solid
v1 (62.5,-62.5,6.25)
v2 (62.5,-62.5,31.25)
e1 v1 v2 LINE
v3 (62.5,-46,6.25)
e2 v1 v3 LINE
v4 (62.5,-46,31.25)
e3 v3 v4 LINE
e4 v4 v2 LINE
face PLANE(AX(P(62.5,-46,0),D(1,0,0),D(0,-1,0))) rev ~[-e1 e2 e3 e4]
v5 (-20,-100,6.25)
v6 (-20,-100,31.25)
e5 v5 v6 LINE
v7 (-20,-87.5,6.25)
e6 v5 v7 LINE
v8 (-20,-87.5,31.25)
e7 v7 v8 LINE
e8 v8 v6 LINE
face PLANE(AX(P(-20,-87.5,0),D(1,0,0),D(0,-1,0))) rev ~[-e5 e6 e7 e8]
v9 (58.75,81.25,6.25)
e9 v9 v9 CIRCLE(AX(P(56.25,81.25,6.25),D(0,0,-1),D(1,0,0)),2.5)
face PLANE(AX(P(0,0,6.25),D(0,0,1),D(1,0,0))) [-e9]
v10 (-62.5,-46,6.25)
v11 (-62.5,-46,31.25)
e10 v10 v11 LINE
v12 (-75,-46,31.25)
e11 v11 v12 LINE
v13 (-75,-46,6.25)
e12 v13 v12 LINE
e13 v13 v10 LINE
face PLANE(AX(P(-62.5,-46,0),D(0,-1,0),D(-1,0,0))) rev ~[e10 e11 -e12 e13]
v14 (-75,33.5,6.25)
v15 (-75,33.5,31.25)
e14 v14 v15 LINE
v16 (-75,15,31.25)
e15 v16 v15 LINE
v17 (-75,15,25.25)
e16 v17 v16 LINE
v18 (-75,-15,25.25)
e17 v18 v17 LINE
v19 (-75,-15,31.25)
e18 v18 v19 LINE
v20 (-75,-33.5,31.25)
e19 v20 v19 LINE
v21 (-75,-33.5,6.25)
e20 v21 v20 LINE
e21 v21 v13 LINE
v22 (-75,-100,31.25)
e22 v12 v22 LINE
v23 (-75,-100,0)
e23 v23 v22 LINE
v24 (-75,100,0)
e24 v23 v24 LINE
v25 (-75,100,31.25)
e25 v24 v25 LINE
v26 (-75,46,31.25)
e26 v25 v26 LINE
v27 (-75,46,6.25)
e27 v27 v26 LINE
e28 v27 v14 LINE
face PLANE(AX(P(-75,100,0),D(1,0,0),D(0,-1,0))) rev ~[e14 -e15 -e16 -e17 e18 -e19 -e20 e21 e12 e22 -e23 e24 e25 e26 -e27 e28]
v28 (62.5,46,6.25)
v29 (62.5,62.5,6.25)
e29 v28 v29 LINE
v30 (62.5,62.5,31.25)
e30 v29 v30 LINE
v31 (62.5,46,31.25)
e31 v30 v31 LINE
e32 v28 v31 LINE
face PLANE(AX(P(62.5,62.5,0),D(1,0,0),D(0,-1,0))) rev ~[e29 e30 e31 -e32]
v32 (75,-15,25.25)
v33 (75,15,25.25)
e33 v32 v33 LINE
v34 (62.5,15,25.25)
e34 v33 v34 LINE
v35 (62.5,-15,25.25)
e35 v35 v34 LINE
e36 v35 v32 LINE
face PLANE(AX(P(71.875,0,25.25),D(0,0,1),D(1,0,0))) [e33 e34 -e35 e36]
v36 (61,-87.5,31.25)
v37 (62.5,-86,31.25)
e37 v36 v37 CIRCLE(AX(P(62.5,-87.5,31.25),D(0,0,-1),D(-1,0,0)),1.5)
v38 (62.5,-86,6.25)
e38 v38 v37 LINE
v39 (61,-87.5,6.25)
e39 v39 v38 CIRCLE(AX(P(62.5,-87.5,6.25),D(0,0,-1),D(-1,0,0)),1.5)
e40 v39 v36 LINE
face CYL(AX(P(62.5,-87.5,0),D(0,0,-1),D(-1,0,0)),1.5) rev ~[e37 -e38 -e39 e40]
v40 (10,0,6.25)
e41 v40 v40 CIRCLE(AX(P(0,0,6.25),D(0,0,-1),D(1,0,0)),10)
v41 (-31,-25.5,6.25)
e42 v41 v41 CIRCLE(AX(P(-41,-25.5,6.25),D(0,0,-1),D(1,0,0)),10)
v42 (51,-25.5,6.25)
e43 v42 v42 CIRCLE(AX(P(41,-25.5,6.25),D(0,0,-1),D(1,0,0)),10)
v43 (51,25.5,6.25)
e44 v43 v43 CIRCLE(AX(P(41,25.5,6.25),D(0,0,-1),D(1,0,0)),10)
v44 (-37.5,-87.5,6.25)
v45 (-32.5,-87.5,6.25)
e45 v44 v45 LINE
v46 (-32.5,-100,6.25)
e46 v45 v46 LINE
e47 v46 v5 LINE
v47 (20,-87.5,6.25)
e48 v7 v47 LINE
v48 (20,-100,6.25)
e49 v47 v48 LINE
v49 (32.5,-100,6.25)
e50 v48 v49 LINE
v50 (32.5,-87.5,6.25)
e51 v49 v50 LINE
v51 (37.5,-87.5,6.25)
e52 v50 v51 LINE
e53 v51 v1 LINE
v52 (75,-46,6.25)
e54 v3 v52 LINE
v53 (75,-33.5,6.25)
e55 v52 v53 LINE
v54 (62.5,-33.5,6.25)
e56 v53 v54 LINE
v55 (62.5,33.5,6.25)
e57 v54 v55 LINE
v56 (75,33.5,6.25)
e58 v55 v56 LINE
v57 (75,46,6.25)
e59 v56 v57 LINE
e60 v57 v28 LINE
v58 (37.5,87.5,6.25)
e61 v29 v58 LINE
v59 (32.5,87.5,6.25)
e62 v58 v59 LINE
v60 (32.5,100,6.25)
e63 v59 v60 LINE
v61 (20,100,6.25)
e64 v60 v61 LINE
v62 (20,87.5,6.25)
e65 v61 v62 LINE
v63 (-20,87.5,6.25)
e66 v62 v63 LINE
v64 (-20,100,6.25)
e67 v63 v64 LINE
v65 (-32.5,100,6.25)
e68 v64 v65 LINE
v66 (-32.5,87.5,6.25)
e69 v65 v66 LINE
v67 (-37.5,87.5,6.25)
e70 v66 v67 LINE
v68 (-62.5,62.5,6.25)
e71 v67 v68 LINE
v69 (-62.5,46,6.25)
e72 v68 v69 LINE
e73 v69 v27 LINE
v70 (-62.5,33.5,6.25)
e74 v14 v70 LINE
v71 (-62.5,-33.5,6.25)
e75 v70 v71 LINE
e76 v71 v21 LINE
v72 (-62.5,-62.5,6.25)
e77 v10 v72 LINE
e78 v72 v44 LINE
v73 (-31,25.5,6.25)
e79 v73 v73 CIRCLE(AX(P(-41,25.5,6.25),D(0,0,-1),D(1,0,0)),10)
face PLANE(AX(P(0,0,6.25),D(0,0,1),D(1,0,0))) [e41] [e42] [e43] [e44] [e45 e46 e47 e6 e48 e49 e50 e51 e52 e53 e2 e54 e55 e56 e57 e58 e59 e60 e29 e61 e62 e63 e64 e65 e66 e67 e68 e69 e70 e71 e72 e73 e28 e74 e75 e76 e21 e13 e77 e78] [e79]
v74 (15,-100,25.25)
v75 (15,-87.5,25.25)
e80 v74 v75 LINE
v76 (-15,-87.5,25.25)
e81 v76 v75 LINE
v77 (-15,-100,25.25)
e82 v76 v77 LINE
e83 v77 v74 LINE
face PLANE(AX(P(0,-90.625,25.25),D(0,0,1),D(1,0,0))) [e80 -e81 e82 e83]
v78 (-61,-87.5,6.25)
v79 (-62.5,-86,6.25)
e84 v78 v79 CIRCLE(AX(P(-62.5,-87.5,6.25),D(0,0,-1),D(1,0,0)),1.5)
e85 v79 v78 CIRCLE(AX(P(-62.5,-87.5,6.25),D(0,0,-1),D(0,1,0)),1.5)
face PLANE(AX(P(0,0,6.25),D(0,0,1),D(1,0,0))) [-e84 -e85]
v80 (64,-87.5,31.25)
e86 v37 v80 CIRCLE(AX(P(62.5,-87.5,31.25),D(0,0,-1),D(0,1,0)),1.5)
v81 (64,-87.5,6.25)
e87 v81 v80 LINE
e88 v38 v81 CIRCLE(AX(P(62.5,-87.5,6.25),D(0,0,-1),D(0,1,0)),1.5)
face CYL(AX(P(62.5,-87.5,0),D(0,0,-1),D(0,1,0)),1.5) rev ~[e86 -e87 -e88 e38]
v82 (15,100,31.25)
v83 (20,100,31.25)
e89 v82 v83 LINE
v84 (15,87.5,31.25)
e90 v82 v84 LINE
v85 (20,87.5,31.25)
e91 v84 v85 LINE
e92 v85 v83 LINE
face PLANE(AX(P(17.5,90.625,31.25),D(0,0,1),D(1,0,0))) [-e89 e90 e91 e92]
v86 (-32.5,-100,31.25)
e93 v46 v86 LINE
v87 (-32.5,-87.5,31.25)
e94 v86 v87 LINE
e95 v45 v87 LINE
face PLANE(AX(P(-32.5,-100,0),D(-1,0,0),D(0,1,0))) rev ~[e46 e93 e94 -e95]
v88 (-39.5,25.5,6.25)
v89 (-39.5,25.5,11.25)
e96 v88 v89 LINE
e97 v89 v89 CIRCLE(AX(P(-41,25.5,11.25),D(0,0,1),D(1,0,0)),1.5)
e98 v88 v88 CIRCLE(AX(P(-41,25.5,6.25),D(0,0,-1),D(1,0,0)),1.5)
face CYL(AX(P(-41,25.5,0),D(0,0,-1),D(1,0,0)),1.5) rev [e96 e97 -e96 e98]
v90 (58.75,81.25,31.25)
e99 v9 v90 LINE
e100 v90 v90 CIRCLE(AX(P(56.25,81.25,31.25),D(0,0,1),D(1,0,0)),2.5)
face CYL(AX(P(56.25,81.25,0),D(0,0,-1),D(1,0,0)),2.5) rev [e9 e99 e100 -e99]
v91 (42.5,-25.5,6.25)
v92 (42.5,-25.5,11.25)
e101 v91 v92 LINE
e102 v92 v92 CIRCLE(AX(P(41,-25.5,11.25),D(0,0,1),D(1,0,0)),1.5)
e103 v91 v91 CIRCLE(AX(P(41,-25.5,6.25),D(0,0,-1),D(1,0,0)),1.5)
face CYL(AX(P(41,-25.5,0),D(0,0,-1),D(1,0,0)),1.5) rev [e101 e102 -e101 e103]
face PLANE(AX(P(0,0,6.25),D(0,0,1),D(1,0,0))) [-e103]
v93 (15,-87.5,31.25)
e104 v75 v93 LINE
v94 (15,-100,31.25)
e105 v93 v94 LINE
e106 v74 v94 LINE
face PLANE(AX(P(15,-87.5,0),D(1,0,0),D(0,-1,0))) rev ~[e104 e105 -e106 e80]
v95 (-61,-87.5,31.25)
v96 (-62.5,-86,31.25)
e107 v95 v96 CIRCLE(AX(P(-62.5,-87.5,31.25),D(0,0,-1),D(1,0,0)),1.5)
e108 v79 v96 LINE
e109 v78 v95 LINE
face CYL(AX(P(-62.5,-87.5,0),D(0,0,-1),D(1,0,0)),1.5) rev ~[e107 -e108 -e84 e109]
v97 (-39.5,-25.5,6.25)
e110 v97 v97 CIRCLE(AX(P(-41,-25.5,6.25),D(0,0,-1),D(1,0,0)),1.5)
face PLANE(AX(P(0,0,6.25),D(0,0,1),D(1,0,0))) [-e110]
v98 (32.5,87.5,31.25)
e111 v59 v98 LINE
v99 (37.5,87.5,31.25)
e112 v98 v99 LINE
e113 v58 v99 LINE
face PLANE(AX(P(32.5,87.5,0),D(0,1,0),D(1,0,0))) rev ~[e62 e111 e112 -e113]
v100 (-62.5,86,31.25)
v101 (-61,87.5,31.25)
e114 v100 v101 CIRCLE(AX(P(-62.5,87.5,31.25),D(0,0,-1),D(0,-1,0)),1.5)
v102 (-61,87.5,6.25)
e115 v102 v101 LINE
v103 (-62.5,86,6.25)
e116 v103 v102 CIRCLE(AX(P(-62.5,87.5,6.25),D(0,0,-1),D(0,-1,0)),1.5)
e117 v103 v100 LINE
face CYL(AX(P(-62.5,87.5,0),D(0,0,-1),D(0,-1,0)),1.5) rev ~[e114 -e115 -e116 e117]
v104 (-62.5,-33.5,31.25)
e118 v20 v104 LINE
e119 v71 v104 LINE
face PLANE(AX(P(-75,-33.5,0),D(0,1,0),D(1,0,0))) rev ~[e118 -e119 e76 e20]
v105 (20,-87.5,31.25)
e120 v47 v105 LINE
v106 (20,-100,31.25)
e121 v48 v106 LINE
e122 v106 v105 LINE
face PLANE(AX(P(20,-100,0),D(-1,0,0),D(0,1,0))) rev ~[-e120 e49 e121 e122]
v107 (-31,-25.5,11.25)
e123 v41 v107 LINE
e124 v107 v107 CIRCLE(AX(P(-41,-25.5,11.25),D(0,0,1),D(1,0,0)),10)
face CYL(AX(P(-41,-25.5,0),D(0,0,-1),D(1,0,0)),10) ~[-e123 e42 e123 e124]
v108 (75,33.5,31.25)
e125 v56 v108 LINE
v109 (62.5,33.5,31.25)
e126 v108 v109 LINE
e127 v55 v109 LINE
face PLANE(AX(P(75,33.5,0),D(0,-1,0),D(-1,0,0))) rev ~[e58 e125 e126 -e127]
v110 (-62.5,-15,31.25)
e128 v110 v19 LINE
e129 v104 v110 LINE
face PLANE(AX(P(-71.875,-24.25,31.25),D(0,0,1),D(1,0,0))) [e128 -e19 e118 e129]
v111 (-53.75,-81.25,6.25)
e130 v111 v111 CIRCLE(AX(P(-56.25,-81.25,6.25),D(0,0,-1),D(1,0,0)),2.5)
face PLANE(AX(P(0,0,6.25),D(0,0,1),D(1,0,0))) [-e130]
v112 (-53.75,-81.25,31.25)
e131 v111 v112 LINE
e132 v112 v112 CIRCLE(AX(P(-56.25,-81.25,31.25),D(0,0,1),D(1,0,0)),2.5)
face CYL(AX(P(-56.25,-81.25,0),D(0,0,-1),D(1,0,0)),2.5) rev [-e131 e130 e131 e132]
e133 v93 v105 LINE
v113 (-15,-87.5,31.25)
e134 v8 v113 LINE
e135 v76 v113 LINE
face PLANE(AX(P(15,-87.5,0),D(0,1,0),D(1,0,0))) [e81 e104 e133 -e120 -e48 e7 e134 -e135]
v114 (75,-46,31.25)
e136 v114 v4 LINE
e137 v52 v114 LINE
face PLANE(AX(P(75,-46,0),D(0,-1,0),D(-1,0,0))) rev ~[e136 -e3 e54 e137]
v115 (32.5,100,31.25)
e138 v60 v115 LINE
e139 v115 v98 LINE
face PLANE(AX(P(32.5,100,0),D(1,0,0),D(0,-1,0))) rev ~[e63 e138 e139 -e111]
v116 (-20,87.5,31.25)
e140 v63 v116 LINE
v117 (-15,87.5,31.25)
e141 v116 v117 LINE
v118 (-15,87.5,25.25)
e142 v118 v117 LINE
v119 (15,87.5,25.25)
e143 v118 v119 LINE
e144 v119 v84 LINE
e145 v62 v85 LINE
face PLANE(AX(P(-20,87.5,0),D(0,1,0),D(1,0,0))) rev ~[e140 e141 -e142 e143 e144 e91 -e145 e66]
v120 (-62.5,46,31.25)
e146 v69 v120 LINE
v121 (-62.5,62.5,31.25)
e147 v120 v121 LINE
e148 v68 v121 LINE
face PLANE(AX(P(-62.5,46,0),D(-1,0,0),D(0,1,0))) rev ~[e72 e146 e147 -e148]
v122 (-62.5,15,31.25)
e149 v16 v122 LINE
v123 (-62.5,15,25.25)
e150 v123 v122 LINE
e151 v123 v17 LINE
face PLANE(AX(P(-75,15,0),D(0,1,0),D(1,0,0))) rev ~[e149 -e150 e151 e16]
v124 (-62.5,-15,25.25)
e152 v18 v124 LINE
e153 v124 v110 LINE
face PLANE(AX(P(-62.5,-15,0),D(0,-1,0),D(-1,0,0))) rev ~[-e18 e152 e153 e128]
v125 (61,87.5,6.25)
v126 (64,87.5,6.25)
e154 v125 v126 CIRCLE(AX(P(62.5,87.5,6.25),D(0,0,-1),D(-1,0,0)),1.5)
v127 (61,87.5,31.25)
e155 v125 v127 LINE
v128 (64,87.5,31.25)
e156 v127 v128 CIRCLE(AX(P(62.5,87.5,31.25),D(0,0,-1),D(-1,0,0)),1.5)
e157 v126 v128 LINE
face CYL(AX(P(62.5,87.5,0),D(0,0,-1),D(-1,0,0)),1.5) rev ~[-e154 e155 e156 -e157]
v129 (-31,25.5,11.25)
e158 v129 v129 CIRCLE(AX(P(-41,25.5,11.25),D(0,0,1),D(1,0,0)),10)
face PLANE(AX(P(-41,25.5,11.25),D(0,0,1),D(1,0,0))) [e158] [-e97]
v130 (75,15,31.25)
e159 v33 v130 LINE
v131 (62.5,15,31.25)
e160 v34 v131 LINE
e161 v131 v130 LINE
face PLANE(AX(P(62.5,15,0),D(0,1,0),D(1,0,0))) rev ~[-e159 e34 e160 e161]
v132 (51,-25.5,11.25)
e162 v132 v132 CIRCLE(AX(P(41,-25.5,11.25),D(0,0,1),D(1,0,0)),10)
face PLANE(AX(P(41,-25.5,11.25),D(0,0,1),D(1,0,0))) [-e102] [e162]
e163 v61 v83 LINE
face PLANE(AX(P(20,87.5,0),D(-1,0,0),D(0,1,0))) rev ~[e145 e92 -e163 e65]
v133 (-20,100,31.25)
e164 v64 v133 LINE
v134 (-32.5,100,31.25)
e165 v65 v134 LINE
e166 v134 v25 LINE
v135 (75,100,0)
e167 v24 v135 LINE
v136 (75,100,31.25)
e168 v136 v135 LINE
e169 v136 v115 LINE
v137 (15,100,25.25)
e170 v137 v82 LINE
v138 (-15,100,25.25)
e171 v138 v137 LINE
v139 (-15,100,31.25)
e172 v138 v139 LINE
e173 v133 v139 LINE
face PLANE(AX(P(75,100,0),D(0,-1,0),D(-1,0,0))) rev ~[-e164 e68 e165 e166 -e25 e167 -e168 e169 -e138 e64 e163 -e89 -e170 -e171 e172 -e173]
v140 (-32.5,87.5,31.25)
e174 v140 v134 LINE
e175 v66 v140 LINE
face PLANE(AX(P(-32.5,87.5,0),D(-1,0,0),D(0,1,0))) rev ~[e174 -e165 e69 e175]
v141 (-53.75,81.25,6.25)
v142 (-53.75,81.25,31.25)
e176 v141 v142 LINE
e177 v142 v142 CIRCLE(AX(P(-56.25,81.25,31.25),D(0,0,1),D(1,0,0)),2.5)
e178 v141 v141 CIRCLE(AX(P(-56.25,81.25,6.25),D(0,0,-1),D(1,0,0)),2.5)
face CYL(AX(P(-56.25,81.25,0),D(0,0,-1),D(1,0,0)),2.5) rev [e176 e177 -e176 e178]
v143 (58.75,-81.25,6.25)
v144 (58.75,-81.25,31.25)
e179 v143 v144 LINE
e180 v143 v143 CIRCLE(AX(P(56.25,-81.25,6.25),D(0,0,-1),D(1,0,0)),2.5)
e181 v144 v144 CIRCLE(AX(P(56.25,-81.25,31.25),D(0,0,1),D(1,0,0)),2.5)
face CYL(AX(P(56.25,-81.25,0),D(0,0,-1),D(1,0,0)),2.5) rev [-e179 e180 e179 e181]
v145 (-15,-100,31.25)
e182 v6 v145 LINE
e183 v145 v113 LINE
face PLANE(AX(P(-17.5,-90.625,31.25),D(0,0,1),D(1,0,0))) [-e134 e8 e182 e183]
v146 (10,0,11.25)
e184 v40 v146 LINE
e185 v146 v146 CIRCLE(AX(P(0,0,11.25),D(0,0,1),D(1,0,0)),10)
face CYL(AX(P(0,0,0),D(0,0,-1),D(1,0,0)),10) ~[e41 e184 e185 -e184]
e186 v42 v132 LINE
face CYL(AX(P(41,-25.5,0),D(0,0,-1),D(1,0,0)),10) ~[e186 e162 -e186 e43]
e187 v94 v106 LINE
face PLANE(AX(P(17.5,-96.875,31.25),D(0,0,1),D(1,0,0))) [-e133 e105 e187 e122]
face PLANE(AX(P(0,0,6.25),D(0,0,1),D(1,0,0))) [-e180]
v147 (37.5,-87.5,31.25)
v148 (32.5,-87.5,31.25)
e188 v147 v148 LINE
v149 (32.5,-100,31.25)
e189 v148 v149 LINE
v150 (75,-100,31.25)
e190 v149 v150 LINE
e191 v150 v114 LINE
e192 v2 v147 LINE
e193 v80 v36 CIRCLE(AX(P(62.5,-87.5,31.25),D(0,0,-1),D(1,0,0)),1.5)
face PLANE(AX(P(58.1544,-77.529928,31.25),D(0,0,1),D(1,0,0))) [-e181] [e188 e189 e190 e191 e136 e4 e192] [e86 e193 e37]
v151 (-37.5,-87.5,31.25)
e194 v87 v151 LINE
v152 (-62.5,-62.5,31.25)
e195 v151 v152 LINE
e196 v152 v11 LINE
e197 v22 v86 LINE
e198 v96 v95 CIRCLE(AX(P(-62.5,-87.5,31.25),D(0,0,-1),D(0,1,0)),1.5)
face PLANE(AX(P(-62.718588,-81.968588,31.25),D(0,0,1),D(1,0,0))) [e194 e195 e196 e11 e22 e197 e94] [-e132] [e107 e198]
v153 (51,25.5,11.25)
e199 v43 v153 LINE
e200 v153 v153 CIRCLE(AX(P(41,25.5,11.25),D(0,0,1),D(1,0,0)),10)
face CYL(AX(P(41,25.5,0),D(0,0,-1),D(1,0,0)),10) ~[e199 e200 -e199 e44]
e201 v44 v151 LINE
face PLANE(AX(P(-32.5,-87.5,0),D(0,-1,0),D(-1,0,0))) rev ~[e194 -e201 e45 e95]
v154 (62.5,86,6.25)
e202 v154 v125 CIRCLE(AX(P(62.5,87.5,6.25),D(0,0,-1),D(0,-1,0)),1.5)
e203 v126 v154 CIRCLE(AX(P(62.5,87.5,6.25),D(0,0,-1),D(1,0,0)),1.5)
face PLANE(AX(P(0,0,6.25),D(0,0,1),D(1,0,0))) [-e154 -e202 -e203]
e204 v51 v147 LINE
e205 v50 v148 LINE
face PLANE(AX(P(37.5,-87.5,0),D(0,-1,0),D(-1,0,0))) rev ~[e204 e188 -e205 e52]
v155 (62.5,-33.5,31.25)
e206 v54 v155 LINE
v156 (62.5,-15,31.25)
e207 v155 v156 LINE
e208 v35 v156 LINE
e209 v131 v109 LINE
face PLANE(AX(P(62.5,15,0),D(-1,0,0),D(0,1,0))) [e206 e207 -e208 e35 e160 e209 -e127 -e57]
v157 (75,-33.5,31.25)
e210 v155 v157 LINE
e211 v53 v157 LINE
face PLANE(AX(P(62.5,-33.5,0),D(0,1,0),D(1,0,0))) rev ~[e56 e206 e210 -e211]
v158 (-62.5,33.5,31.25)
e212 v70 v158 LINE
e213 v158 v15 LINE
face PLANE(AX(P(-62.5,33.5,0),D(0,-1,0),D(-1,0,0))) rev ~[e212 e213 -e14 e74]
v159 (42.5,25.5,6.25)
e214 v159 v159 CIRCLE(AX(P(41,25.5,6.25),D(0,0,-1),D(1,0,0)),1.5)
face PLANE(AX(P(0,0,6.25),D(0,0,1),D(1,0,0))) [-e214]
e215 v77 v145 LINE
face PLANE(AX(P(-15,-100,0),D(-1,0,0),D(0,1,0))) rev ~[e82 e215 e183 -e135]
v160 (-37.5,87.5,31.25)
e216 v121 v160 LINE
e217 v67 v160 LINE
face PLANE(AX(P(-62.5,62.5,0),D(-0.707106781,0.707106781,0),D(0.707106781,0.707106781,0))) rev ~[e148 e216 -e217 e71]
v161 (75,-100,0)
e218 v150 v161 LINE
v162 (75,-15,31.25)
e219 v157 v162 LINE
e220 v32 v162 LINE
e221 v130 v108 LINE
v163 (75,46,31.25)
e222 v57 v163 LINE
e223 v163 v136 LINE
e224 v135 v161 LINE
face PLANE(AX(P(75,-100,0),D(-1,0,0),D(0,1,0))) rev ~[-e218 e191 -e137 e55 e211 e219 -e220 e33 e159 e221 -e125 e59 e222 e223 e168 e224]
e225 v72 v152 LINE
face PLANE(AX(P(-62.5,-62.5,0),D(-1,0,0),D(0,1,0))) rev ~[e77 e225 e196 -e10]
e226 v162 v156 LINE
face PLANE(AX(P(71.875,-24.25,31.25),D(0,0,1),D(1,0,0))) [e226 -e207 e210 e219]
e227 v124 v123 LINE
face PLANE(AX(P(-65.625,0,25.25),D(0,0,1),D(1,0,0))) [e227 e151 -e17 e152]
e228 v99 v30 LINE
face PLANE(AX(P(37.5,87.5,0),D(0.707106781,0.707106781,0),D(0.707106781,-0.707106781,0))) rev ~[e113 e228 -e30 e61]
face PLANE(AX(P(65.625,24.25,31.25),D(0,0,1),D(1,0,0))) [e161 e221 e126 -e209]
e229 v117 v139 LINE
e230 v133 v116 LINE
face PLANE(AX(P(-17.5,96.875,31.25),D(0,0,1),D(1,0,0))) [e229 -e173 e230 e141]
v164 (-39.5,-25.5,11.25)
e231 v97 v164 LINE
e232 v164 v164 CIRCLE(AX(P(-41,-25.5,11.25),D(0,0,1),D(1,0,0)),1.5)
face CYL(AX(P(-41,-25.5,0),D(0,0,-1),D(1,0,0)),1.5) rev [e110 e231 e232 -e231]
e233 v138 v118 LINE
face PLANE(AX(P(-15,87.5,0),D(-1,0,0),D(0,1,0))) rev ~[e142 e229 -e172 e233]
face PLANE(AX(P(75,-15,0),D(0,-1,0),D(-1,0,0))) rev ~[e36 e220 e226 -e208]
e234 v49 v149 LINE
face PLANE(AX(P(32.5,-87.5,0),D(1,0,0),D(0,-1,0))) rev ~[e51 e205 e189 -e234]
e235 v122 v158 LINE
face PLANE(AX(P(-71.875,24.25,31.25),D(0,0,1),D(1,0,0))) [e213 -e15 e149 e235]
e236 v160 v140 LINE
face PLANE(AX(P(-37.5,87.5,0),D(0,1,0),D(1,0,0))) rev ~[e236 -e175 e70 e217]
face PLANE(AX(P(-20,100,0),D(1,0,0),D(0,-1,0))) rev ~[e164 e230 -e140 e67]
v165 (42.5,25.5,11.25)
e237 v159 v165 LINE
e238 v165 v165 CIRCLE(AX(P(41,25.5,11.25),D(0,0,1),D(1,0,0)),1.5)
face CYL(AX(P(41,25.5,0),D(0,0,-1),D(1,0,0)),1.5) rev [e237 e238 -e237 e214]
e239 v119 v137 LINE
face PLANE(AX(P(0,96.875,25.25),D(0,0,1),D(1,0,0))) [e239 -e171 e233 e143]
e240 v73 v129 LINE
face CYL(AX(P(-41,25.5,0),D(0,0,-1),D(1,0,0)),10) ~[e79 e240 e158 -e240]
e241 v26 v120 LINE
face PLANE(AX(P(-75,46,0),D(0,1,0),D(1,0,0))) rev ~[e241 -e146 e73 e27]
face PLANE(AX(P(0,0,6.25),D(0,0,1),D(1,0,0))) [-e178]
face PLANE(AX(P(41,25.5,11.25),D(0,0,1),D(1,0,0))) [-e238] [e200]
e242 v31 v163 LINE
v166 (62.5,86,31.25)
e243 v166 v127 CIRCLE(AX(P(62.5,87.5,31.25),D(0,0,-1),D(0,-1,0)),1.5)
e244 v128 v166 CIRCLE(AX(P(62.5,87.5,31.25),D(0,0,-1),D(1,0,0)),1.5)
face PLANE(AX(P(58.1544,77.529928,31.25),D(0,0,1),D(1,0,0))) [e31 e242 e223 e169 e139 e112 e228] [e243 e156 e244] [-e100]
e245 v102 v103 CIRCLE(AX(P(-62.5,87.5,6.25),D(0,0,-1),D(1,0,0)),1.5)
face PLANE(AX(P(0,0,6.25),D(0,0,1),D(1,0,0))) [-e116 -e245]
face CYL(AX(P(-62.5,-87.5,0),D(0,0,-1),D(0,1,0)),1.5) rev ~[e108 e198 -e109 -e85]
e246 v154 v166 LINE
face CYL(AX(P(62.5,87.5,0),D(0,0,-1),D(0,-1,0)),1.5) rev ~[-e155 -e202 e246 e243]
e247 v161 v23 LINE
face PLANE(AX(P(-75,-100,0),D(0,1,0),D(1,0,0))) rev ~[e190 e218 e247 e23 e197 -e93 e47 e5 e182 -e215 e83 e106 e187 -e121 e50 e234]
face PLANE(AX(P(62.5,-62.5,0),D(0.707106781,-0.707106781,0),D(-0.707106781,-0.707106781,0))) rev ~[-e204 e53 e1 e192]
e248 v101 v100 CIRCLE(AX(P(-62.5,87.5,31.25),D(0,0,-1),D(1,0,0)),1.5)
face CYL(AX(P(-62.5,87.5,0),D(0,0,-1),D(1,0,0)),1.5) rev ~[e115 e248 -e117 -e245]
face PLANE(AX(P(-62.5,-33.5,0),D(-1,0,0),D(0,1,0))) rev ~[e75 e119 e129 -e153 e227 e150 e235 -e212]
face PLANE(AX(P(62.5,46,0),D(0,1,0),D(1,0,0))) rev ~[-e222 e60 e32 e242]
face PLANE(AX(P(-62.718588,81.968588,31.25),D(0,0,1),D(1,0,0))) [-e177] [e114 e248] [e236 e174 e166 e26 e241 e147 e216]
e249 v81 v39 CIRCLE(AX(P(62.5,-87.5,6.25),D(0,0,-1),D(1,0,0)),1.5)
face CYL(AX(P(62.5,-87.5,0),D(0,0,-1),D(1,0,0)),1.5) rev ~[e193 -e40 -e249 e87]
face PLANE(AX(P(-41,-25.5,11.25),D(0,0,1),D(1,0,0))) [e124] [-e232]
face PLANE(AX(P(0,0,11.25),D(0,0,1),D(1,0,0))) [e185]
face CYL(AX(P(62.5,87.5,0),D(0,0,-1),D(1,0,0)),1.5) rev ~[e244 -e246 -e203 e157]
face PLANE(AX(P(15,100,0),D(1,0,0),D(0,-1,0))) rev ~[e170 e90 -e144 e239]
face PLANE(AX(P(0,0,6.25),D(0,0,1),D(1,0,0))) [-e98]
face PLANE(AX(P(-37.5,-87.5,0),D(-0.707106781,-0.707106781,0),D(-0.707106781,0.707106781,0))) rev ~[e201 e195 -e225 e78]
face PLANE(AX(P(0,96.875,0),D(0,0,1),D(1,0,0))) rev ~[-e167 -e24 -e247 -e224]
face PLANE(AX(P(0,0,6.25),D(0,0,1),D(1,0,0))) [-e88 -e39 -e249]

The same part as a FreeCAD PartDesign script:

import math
import FreeCAD as App
import Part
import Sketcher

V = App.Vector
Q = App.Units.Quantity


def add_polygon(sketch, points):
    """Adds a closed chain of lines whose ends are joined by coincident constraints."""
    first, n = sketch.GeometryCount, len(points)
    for a, b in zip(points, points[1:] + points[:1]):
        sketch.addGeometry(Part.LineSegment(App.Vector(*a, 0), App.Vector(*b, 0)), False)
    for i in range(n):
        sketch.addConstraint(Sketcher.Constraint("Coincident", first + i, 2, first + (i + 1) % n, 1))

doc = App.newDocument("Part")
body = doc.addObject("PartDesign::Body", "Body")

sketch1 = body.newObject("Sketcher::SketchObject", "Sketch")
sketch1.AttachmentSupport = (doc.getObject("XY_Plane"), [""])
sketch1.MapMode = "FlatFace"
add_polygon(sketch1, [(-75, 100), (-75, -100), (75, -100), (75, 100)])
sketch1.addConstraint(Sketcher.Constraint("Vertical", 0))
sketch1.addConstraint(Sketcher.Constraint("Horizontal", 1))
sketch1.addConstraint(Sketcher.Constraint("Vertical", 2))
sketch1.addConstraint(Sketcher.Constraint("Horizontal", 3))
sketch1.addConstraint(Sketcher.Constraint("Symmetric", 0, 2, 2, 2, -1, 1))
sketch1.addConstraint(Sketcher.Constraint("DistanceX", 1, 1, 1, 2, Q("150 mm")))
sketch1.addConstraint(Sketcher.Constraint("DistanceY", 0, 2, 0, 1, Q("200 mm")))
pad1 = body.newObject("PartDesign::Pad", "Pad")
pad1.Profile = sketch1
pad1.Length = 6.25

sketch2 = body.newObject("Sketcher::SketchObject", "Sketch001")
sketch2.AttachmentSupport = (doc.getObject("XY_Plane"), [""])
sketch2.MapMode = "FlatFace"
sketch2.addGeometry(Part.Circle(V(-41, 25.5, 0), V(0, 0, 1), 10), False)
sketch2.addGeometry(Part.Circle(V(-41, 25.5, 0), V(0, 0, 1), 1.5), False)
sketch2.addGeometry(Part.Circle(V(41, 25.5, 0), V(0, 0, 1), 10), False)
sketch2.addGeometry(Part.Circle(V(41, 25.5, 0), V(0, 0, 1), 1.5), False)
sketch2.addGeometry(Part.Circle(V(0, 0, 0), V(0, 0, 1), 10), False)
sketch2.addGeometry(Part.Circle(V(41, -25.5, 0), V(0, 0, 1), 10), False)
sketch2.addGeometry(Part.Circle(V(41, -25.5, 0), V(0, 0, 1), 1.5), False)
sketch2.addGeometry(Part.Circle(V(-41, -25.5, 0), V(0, 0, 1), 10), False)
sketch2.addGeometry(Part.Circle(V(-41, -25.5, 0), V(0, 0, 1), 1.5), False)
sketch2.addConstraint(Sketcher.Constraint("Coincident", 4, 3, -1, 1))
sketch2.addConstraint(Sketcher.Constraint("Coincident", 1, 3, 0, 3))
sketch2.addConstraint(Sketcher.Constraint("Coincident", 3, 3, 2, 3))
sketch2.addConstraint(Sketcher.Constraint("Coincident", 6, 3, 5, 3))
sketch2.addConstraint(Sketcher.Constraint("Coincident", 8, 3, 7, 3))
sketch2.addConstraint(Sketcher.Constraint("Equal", 0, 2))
sketch2.addConstraint(Sketcher.Constraint("Equal", 1, 3))
sketch2.addConstraint(Sketcher.Constraint("Equal", 2, 4))
sketch2.addConstraint(Sketcher.Constraint("Equal", 4, 5))
sketch2.addConstraint(Sketcher.Constraint("Equal", 3, 6))
sketch2.addConstraint(Sketcher.Constraint("Equal", 5, 7))
sketch2.addConstraint(Sketcher.Constraint("Equal", 6, 8))
sketch2.addConstraint(Sketcher.Constraint("Symmetric", 0, 3, 5, 3, -1, 1))
sketch2.addConstraint(Sketcher.Constraint("Symmetric", 2, 3, 7, 3, -1, 1))
sketch2.addConstraint(Sketcher.Constraint("Symmetric", 0, 3, 2, 3, -2))
sketch2.addConstraint(Sketcher.Constraint("Diameter", 0, Q("20 mm")))
sketch2.addConstraint(Sketcher.Constraint("Diameter", 1, Q("3 mm")))
sketch2.addConstraint(Sketcher.Constraint("DistanceX", 0, 3, -1, 1, Q("41 mm")))
sketch2.addConstraint(Sketcher.Constraint("DistanceY", 5, 3, 2, 3, Q("51 mm")))
pad2 = body.newObject("PartDesign::Pad", "Pad001")
pad2.Profile = sketch2
pad2.Length = 11.25

sketch3 = body.newObject("Sketcher::SketchObject", "Sketch002")
sketch3.AttachmentSupport = (doc.getObject("XY_Plane"), [""])
sketch3.MapMode = "FlatFace"
add_polygon(sketch3, [(-32.5, 100), (-75, 100), (-75, 46), (-62.5, 46), (-62.5, 62.5), (-37.5, 87.5), (-32.5, 87.5)])
sketch3.addGeometry(Part.Circle(V(-56.2, 81.2, 0), V(0, 0, 1), 2.5), False)
sketch3.addGeometry(Part.ArcOfCircle(Part.Circle(V(-62.5, 87.5, 0), V(0, 0, 1), 1.5), math.radians(0), math.radians(270)), False)
sketch3.addGeometry(Part.ArcOfCircle(Part.Circle(V(-62.5, 87.5, 0), V(0, 0, 1), 1.5), math.radians(-90), math.radians(0)), False)
add_polygon(sketch3, [(-75, 33.5), (-75, 15), (-62.5, 15), (-62.5, 33.5)])
add_polygon(sketch3, [(-75, -15), (-75, -33.5), (-62.5, -33.5), (-62.5, -15)])
add_polygon(sketch3, [(-75, -46), (-75, -100), (-32.5, -100), (-32.5, -87.5), (-37.5, -87.5), (-62.5, -62.5), (-62.5, -46)])
sketch3.addGeometry(Part.ArcOfCircle(Part.Circle(V(-62.5, -87.5, 0), V(0, 0, 1), 1.5), math.radians(90), math.radians(360)), False)
sketch3.addGeometry(Part.ArcOfCircle(Part.Circle(V(-62.5, -87.5, 0), V(0, 0, 1), 1.5), math.radians(0), math.radians(90)), False)
sketch3.addGeometry(Part.Circle(V(-56.2, -81.2, 0), V(0, 0, 1), 2.5), False)
add_polygon(sketch3, [(-20, -87.5), (-20, -100), (-15, -100), (-15, -87.5)])
add_polygon(sketch3, [(15, -100), (20, -100), (20, -87.5), (15, -87.5)])
add_polygon(sketch3, [(62.5, -46), (62.5, -62.5), (37.5, -87.5), (32.5, -87.5), (32.5, -100), (75, -100), (75, -46)])
sketch3.addGeometry(Part.ArcOfCircle(Part.Circle(V(62.5, -87.5, 0), V(0, 0, 1), 1.5), math.radians(0), math.radians(90)), False)
sketch3.addGeometry(Part.ArcOfCircle(Part.Circle(V(62.5, -87.5, 0), V(0, 0, 1), 1.5), math.radians(180), math.radians(360)), False)
sketch3.addGeometry(Part.ArcOfCircle(Part.Circle(V(62.5, -87.5, 0), V(0, 0, 1), 1.5), math.radians(90), math.radians(180)), False)
sketch3.addGeometry(Part.Circle(V(56.2, -81.2, 0), V(0, 0, 1), 2.5), False)
add_polygon(sketch3, [(75, -33.5), (75, -15), (62.5, -15), (62.5, -33.5)])
add_polygon(sketch3, [(62.5, 33.5), (62.5, 15), (75, 15), (75, 33.5)])
add_polygon(sketch3, [(32.5, 87.5), (37.5, 87.5), (62.5, 62.5), (62.5, 46), (75, 46), (75, 100), (32.5, 100)])
sketch3.addGeometry(Part.Circle(V(56.2, 81.2, 0), V(0, 0, 1), 2.5), False)
sketch3.addGeometry(Part.ArcOfCircle(Part.Circle(V(62.5, 87.5, 0), V(0, 0, 1), 1.5), math.radians(0), math.radians(180)), False)
sketch3.addGeometry(Part.ArcOfCircle(Part.Circle(V(62.5, 87.5, 0), V(0, 0, 1), 1.5), math.radians(-90), math.radians(0)), False)
sketch3.addGeometry(Part.ArcOfCircle(Part.Circle(V(62.5, 87.5, 0), V(0, 0, 1), 1.5), math.radians(180), math.radians(270)), False)
add_polygon(sketch3, [(15, 87.5), (20, 87.5), (20, 100), (15, 100)])
add_polygon(sketch3, [(-20, 100), (-20, 87.5), (-15, 87.5), (-15, 100)])
sketch3.addConstraint(Sketcher.Constraint("Tangent", 8, 1, 9, 2))
sketch3.addConstraint(Sketcher.Constraint("Coincident", 9, 1, 8, 2))
sketch3.addConstraint(Sketcher.Constraint("Tangent", 25, 1, 26, 2))
sketch3.addConstraint(Sketcher.Constraint("Coincident", 26, 1, 25, 2))
sketch3.addConstraint(Sketcher.Constraint("Tangent", 43, 1, 44, 2))
sketch3.addConstraint(Sketcher.Constraint("Tangent", 44, 1, 45, 2))
sketch3.addConstraint(Sketcher.Constraint("Tangent", 45, 1, 43, 2))
sketch3.addConstraint(Sketcher.Constraint("Tangent", 63, 1, 64, 2))
sketch3.addConstraint(Sketcher.Constraint("Tangent", 64, 1, 65, 2))
sketch3.addConstraint(Sketcher.Constraint("Tangent", 65, 1, 63, 2))
sketch3.addConstraint(Sketcher.Constraint("Horizontal", 0))
sketch3.addConstraint(Sketcher.Constraint("Vertical", 1))
sketch3.addConstraint(Sketcher.Constraint("Horizontal", 2))
sketch3.addConstraint(Sketcher.Constraint("Vertical", 3))
sketch3.addConstraint(Sketcher.Constraint("Horizontal", 5))
sketch3.addConstraint(Sketcher.Constraint("Vertical", 6))
sketch3.addConstraint(Sketcher.Constraint("Vertical", 10))
sketch3.addConstraint(Sketcher.Constraint("Horizontal", 11))
sketch3.addConstraint(Sketcher.Constraint("Vertical", 12))
sketch3.addConstraint(Sketcher.Constraint("Horizontal", 13))
sketch3.addConstraint(Sketcher.Constraint("Vertical", 14))
sketch3.addConstraint(Sketcher.Constraint("Horizontal", 15))
sketch3.addConstraint(Sketcher.Constraint("Vertical", 16))
sketch3.addConstraint(Sketcher.Constraint("Horizontal", 17))
sketch3.addConstraint(Sketcher.Constraint("Vertical", 18))
sketch3.addConstraint(Sketcher.Constraint("Horizontal", 19))
sketch3.addConstraint(Sketcher.Constraint("Vertical", 20))
sketch3.addConstraint(Sketcher.Constraint("Horizontal", 21))
sketch3.addConstraint(Sketcher.Constraint("Vertical", 23))
sketch3.addConstraint(Sketcher.Constraint("Horizontal", 24))
sketch3.addConstraint(Sketcher.Constraint("Vertical", 28))
sketch3.addConstraint(Sketcher.Constraint("Horizontal", 29))
sketch3.addConstraint(Sketcher.Constraint("Vertical", 30))
sketch3.addConstraint(Sketcher.Constraint("Horizontal", 31))
sketch3.addConstraint(Sketcher.Constraint("Horizontal", 32))
sketch3.addConstraint(Sketcher.Constraint("Vertical", 33))
sketch3.addConstraint(Sketcher.Constraint("Horizontal", 34))
sketch3.addConstraint(Sketcher.Constraint("Vertical", 35))
sketch3.addConstraint(Sketcher.Constraint("Vertical", 36))
sketch3.addConstraint(Sketcher.Constraint("Horizontal", 38))
sketch3.addConstraint(Sketcher.Constraint("Vertical", 39))
sketch3.addConstraint(Sketcher.Constraint("Horizontal", 40))
sketch3.addConstraint(Sketcher.Constraint("Vertical", 41))
sketch3.addConstraint(Sketcher.Constraint("Horizontal", 42))
sketch3.addConstraint(Sketcher.Constraint("Vertical", 47))
sketch3.addConstraint(Sketcher.Constraint("Horizontal", 48))
sketch3.addConstraint(Sketcher.Constraint("Vertical", 49))
sketch3.addConstraint(Sketcher.Constraint("Horizontal", 50))
sketch3.addConstraint(Sketcher.Constraint("Vertical", 51))
sketch3.addConstraint(Sketcher.Constraint("Horizontal", 52))
sketch3.addConstraint(Sketcher.Constraint("Vertical", 53))
sketch3.addConstraint(Sketcher.Constraint("Horizontal", 54))
sketch3.addConstraint(Sketcher.Constraint("Horizontal", 55))
sketch3.addConstraint(Sketcher.Constraint("Vertical", 57))
sketch3.addConstraint(Sketcher.Constraint("Horizontal", 58))
sketch3.addConstraint(Sketcher.Constraint("Vertical", 59))
sketch3.addConstraint(Sketcher.Constraint("Horizontal", 60))
sketch3.addConstraint(Sketcher.Constraint("Vertical", 61))
sketch3.addConstraint(Sketcher.Constraint("Horizontal", 66))
sketch3.addConstraint(Sketcher.Constraint("Vertical", 67))
sketch3.addConstraint(Sketcher.Constraint("Horizontal", 68))
sketch3.addConstraint(Sketcher.Constraint("Vertical", 69))
sketch3.addConstraint(Sketcher.Constraint("Vertical", 70))
sketch3.addConstraint(Sketcher.Constraint("Horizontal", 71))
sketch3.addConstraint(Sketcher.Constraint("Vertical", 72))
sketch3.addConstraint(Sketcher.Constraint("Horizontal", 73))
sketch3.addConstraint(Sketcher.Constraint("Equal", 9, 25))
sketch3.addConstraint(Sketcher.Constraint("Equal", 7, 27))
sketch3.addConstraint(Sketcher.Constraint("Equal", 26, 43))
sketch3.addConstraint(Sketcher.Constraint("Equal", 27, 46))
sketch3.addConstraint(Sketcher.Constraint("Equal", 46, 62))
sketch3.addConstraint(Sketcher.Constraint("Equal", 45, 63))
sketch3.addConstraint(Sketcher.Constraint("Symmetric", 8, 3, 43, 3, -1, 1))
sketch3.addConstraint(Sketcher.Constraint("Symmetric", 7, 3, 46, 3, -1, 1))
sketch3.addConstraint(Sketcher.Constraint("Symmetric", 27, 3, 62, 3, -1, 1))
sketch3.addConstraint(Sketcher.Constraint("Symmetric", 25, 3, 63, 3, -1, 1))
sketch3.addConstraint(Sketcher.Constraint("Symmetric", 3, 2, 36, 2, -1, 1))
sketch3.addConstraint(Sketcher.Constraint("Symmetric", 4, 2, 37, 2, -1, 1))
sketch3.addConstraint(Sketcher.Constraint("Symmetric", 6, 2, 39, 2, -1, 1))
sketch3.addConstraint(Sketcher.Constraint("Symmetric", 1, 2, 41, 2, -1, 1))
sketch3.addConstraint(Sketcher.Constraint("Symmetric", 10, 2, 47, 2, -1, 1))
sketch3.addConstraint(Sketcher.Constraint("Symmetric", 12, 2, 49, 2, -1, 1))
sketch3.addConstraint(Sketcher.Constraint("Symmetric", 16, 2, 51, 2, -1, 1))
sketch3.addConstraint(Sketcher.Constraint("Symmetric", 14, 2, 53, 2, -1, 1))
sketch3.addConstraint(Sketcher.Constraint("Symmetric", 21, 2, 55, 2, -1, 1))
sketch3.addConstraint(Sketcher.Constraint("Symmetric", 22, 2, 56, 2, -1, 1))
sketch3.addConstraint(Sketcher.Constraint("Symmetric", 24, 2, 58, 2, -1, 1))
sketch3.addConstraint(Sketcher.Constraint("Symmetric", 19, 2, 60, 2, -1, 1))
sketch3.addConstraint(Sketcher.Constraint("Symmetric", 31, 2, 66, 2, -1, 1))
sketch3.addConstraint(Sketcher.Constraint("Symmetric", 29, 2, 68, 2, -1, 1))
sketch3.addConstraint(Sketcher.Constraint("Symmetric", 33, 2, 70, 2, -1, 1))
sketch3.addConstraint(Sketcher.Constraint("Symmetric", 35, 2, 72, 2, -1, 1))
sketch3.addConstraint(Sketcher.Constraint("Symmetric", 25, 3, 43, 3, -2))
sketch3.addConstraint(Sketcher.Constraint("Symmetric", 27, 3, 46, 3, -2))
sketch3.addConstraint(Sketcher.Constraint("Symmetric", 28, 2, 32, 2, -2))
sketch3.addConstraint(Sketcher.Constraint("Symmetric", 30, 2, 34, 2, -2))
sketch3.addConstraint(Sketcher.Constraint("Symmetric", 22, 2, 36, 2, -2))
sketch3.addConstraint(Sketcher.Constraint("Symmetric", 21, 2, 37, 2, -2))
sketch3.addConstraint(Sketcher.Constraint("Symmetric", 19, 2, 39, 2, -2))
sketch3.addConstraint(Sketcher.Constraint("Symmetric", 24, 2, 41, 2, -2))
sketch3.addConstraint(Sketcher.Constraint("Symmetric", 17, 2, 47, 2, -2))
sketch3.addConstraint(Sketcher.Constraint("Symmetric", 15, 2, 49, 2, -2))
sketch3.addConstraint(Sketcher.Constraint("Perpendicular", 4, 22))
sketch3.addConstraint(Sketcher.Constraint("Horizontal", 65, 3, 4, 2))
sketch3.addConstraint(Sketcher.Constraint("Horizontal", 5, 2, 8, 1))
sketch3.addConstraint(Sketcher.Constraint("Horizontal", 21, 2, 26, 1))
sketch3.addConstraint(Sketcher.Constraint("Horizontal", 19, 2, 28, 2))
sketch3.addConstraint(Sketcher.Constraint("Horizontal", 26, 1, 30, 2))
sketch3.addConstraint(Sketcher.Constraint("Horizontal", 38, 2, 43, 1))
sketch3.addConstraint(Sketcher.Constraint("Horizontal", 43, 1, 44, 1))
sketch3.addConstraint(Sketcher.Constraint("Horizontal", 61, 2, 63, 1))
sketch3.addConstraint(Sketcher.Constraint("Horizontal", 63, 1, 65, 1))
sketch3.addConstraint(Sketcher.Constraint("Vertical", 26, 3, 2, 2))
sketch3.addConstraint(Sketcher.Constraint("Vertical", 3, 2, 9, 1))
sketch3.addConstraint(Sketcher.Constraint("Vertical", 1, 2, 10, 2))
sketch3.addConstraint(Sketcher.Constraint("Vertical", 9, 1, 11, 2))
sketch3.addConstraint(Sketcher.Constraint("Vertical", 23, 2, 25, 1))
sketch3.addConstraint(Sketcher.Constraint("Vertical", 42, 2, 45, 1))
sketch3.addConstraint(Sketcher.Constraint("Vertical", 57, 2, 64, 1))
sketch3.addConstraint(Sketcher.Constraint("Equal", 21, 29))
sketch3.addConstraint(Sketcher.Constraint("Equal", 58, 6))
sketch3.addConstraint(Sketcher.Constraint("Diameter", 7, Q("5 mm")))
sketch3.addConstraint(Sketcher.Constraint("Radius", 8, Q("1.5 mm")))
sketch3.addConstraint(Sketcher.Constraint("DistanceX", 5, 1, 5, 2, Q("5 mm")))
sketch3.addConstraint(Sketcher.Constraint("DistanceY", 1, 2, 1, 1, Q("54 mm")))
sketch3.addConstraint(Sketcher.Constraint("DistanceX", 0, 2, 0, 1, Q("42.5 mm")))
sketch3.addConstraint(Sketcher.Constraint("DistanceX", 2, 1, 2, 2, Q("12.5 mm")))
sketch3.addConstraint(Sketcher.Constraint("DistanceY", 10, 2, 10, 1, Q("18.5 mm")))
sketch3.addConstraint(Sketcher.Constraint("DistanceX", 0, 2, -1, 1, Q("75 mm")))
sketch3.addConstraint(Sketcher.Constraint("DistanceY", -1, 1, 0, 2, Q("100 mm")))
sketch3.addConstraint(Sketcher.Constraint("DistanceY", -1, 1, 10, 2, Q("15 mm")))
sketch3.addConstraint(Sketcher.Constraint("DistanceX", 28, 2, -1, 1, Q("20 mm")))
sketch3.addConstraint(Sketcher.Constraint("DistanceX", 7, 3, -1, 1, Q("56.25 mm")))
sketch3.addConstraint(Sketcher.Constraint("DistanceY", -1, 1, 7, 3, Q("81.25 mm")))
pad3 = body.newObject("PartDesign::Pad", "Pad002")
pad3.Profile = sketch3
pad3.Length = 31.25

sketch4 = body.newObject("Sketcher::SketchObject", "Sketch003")
sketch4.AttachmentSupport = (doc.getObject("XY_Plane"), [""])
sketch4.MapMode = "FlatFace"
add_polygon(sketch4, [(-15, 100), (-15, 88), (15, 88), (15, 100)])
add_polygon(sketch4, [(75, -15), (75, 15), (62, 15), (62, -15)])
add_polygon(sketch4, [(-62, -15), (-62, 15), (-75, 15), (-75, -15)])
add_polygon(sketch4, [(-15, -88), (-15, -100), (15, -100), (15, -88)])
sketch4.addConstraint(Sketcher.Constraint("Vertical", 0))
sketch4.addConstraint(Sketcher.Constraint("Horizontal", 1))
sketch4.addConstraint(Sketcher.Constraint("Vertical", 2))
sketch4.addConstraint(Sketcher.Constraint("Horizontal", 3))
sketch4.addConstraint(Sketcher.Constraint("Vertical", 4))
sketch4.addConstraint(Sketcher.Constraint("Horizontal", 5))
sketch4.addConstraint(Sketcher.Constraint("Vertical", 6))
sketch4.addConstraint(Sketcher.Constraint("Horizontal", 7))
sketch4.addConstraint(Sketcher.Constraint("Vertical", 8))
sketch4.addConstraint(Sketcher.Constraint("Horizontal", 9))
sketch4.addConstraint(Sketcher.Constraint("Vertical", 10))
sketch4.addConstraint(Sketcher.Constraint("Horizontal", 11))
sketch4.addConstraint(Sketcher.Constraint("Vertical", 12))
sketch4.addConstraint(Sketcher.Constraint("Horizontal", 13))
sketch4.addConstraint(Sketcher.Constraint("Vertical", 14))
sketch4.addConstraint(Sketcher.Constraint("Horizontal", 15))
sketch4.addConstraint(Sketcher.Constraint("Symmetric", 6, 2, 8, 2, -1, 1))
sketch4.addConstraint(Sketcher.Constraint("Symmetric", 4, 2, 10, 2, -1, 1))
sketch4.addConstraint(Sketcher.Constraint("Symmetric", 2, 2, 12, 2, -1, 1))
sketch4.addConstraint(Sketcher.Constraint("Symmetric", 0, 2, 14, 2, -1, 1))
sketch4.addConstraint(Sketcher.Constraint("Horizontal", 5, 2, 8, 2))
sketch4.addConstraint(Sketcher.Constraint("Vertical", 3, 2, 12, 2))
sketch4.addConstraint(Sketcher.Constraint("Equal", 11, 0))
sketch4.addConstraint(Sketcher.Constraint("Equal", 15, 4))
sketch4.addConstraint(Sketcher.Constraint("DistanceX", 1, 1, 1, 2, Q("30 mm")))
sketch4.addConstraint(Sketcher.Constraint("DistanceX", 5, 2, 5, 1, Q("12.5 mm")))
sketch4.addConstraint(Sketcher.Constraint("DistanceY", -1, 1, 2, 2, Q("100 mm")))
sketch4.addConstraint(Sketcher.Constraint("DistanceX", -1, 1, 4, 2, Q("75 mm")))
pad4 = body.newObject("PartDesign::Pad", "Pad003")
pad4.Profile = sketch4
pad4.Length = 25.25

doc.recompute()
